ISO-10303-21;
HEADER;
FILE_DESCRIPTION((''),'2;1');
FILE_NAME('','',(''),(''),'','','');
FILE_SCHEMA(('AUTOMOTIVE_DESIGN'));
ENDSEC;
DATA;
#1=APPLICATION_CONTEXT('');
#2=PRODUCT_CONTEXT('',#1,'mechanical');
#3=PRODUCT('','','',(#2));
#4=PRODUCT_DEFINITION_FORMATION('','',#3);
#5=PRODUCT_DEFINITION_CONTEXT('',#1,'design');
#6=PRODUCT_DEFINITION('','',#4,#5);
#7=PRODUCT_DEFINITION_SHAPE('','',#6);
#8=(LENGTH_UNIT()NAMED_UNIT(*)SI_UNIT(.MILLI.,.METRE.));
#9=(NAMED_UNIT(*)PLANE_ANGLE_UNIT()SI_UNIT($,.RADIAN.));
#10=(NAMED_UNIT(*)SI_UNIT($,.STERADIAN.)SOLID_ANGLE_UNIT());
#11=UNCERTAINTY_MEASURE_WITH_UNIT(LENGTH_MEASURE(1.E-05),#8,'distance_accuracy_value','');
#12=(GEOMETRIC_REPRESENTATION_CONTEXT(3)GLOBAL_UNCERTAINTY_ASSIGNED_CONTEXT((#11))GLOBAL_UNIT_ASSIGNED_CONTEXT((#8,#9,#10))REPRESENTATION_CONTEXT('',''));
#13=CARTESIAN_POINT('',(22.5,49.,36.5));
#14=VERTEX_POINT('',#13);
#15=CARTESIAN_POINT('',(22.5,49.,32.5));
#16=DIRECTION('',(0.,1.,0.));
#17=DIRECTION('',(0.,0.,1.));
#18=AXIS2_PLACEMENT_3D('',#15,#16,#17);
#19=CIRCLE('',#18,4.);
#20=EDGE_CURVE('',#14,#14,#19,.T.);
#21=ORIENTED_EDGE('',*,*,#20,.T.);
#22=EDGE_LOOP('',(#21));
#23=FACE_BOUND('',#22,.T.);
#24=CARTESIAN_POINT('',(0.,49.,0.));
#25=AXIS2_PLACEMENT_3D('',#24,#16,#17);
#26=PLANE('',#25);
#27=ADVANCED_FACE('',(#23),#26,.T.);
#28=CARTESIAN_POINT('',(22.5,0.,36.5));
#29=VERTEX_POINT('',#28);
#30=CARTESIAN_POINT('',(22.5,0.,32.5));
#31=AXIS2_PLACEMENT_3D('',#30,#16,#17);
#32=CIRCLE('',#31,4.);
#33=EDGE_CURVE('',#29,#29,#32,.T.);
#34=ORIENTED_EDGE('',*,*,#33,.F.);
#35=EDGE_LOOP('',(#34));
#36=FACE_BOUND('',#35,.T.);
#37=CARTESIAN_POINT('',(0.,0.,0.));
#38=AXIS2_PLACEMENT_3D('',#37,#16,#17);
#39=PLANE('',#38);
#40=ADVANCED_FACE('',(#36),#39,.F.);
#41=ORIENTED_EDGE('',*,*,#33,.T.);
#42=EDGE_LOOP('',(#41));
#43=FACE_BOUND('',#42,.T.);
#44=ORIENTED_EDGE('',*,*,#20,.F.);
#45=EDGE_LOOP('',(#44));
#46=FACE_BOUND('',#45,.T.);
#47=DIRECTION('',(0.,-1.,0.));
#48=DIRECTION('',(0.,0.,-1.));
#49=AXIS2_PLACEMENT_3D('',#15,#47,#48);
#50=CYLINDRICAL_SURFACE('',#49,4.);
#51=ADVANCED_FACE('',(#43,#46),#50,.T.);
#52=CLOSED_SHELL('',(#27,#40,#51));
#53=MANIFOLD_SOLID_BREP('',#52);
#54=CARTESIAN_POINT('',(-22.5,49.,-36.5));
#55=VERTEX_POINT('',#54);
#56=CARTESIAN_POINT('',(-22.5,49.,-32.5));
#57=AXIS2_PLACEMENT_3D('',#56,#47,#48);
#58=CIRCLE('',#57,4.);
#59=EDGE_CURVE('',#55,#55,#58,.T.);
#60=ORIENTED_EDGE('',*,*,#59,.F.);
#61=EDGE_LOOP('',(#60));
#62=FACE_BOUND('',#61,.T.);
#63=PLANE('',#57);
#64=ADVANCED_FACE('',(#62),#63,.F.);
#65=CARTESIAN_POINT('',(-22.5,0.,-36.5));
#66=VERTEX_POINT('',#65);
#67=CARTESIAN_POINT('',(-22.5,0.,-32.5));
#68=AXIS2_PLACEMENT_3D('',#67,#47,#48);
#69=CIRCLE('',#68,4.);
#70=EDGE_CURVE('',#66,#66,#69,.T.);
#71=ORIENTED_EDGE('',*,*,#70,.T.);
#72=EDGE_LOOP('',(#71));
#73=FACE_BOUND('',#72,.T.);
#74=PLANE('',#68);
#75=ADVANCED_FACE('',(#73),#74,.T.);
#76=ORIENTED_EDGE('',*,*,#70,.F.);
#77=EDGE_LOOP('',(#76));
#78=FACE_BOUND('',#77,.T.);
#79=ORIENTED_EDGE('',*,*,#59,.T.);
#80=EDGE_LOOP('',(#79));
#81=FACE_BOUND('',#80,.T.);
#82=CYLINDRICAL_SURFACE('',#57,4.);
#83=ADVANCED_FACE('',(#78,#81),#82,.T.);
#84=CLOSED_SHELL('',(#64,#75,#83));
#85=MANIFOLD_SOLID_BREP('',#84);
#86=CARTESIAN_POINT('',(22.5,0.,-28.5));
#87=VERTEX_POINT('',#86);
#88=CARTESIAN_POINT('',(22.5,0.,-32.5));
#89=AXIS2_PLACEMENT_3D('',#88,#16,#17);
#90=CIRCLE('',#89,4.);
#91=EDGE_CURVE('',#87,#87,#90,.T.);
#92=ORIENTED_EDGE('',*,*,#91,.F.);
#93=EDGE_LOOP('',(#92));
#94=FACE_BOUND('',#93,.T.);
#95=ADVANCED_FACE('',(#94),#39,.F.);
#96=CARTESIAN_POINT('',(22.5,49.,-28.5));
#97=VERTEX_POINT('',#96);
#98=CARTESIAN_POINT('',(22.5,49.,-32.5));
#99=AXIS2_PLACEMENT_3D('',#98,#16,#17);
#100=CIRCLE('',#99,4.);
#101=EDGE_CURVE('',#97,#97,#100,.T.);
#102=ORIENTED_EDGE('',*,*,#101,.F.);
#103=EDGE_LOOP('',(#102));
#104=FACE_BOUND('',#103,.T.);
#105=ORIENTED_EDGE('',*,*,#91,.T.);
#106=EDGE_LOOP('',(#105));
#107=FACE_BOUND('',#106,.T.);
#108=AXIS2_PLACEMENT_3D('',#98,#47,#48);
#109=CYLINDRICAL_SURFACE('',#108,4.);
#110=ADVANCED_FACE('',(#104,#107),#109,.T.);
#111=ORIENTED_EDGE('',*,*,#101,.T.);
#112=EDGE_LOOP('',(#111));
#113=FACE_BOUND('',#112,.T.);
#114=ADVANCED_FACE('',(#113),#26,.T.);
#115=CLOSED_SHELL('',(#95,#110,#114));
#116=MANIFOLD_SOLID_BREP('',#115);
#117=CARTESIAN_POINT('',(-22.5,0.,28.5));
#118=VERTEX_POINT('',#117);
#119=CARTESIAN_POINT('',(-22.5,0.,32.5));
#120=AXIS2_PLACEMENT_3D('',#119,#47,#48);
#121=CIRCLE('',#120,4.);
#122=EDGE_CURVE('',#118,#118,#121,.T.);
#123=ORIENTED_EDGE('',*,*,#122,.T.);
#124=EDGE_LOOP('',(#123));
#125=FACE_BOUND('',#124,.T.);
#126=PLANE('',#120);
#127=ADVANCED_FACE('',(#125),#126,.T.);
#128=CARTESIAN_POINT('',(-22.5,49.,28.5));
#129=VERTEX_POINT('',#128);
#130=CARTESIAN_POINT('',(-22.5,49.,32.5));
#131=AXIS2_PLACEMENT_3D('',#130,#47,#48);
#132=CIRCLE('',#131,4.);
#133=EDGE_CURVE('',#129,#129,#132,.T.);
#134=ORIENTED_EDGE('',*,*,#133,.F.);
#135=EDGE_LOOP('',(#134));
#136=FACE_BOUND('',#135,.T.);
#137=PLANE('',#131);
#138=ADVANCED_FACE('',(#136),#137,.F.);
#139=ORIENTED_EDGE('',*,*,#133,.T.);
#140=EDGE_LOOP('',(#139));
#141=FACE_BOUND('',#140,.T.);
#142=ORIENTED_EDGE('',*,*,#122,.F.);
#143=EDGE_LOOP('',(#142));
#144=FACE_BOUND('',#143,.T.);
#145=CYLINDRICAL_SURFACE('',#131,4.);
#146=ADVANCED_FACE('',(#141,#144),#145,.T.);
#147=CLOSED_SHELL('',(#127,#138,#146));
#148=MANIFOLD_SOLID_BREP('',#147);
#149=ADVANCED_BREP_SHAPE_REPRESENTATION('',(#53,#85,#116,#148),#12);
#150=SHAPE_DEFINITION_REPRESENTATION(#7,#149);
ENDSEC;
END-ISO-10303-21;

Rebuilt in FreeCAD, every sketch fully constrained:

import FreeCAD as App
import Part
import Sketcher

doc = App.newDocument("Part")
body = doc.addObject("PartDesign::Body", "Body")

# Sketch on XZ plane
sketch1 = doc.addObject("Sketcher::SketchObject", "Sketch")
body.addObject(sketch1)
sketch1.AttachmentSupport = (doc.XZ_Plane, [""])
sketch1.MapMode = "FlatFace"
sketch1.addGeometry(Part.Circle(App.Vector(22.5, 32.5, 0), App.Vector(0, 0, 1), 4), False)
sketch1.addConstraint([
    Sketcher.Constraint("Diameter", 0, 8.0),
    Sketcher.Constraint("DistanceX", -1, 1, 0, 3, 22.5),
    Sketcher.Constraint("DistanceY", -1, 1, 0, 3, 32.5),
])
pad1 = doc.addObject("PartDesign::Pad", "Pad")
body.addObject(pad1)
pad1.Profile = sketch1
pad1.Length = 49
pad1.Reversed = True
body2 = doc.addObject("PartDesign::Body", "Body001")

# Sketch on XZ plane
sketch2 = doc.addObject("Sketcher::SketchObject", "Sketch001")
body2.addObject(sketch2)
sketch2.AttachmentSupport = (doc.getObject("XZ_Plane001"), [""])
sketch2.MapMode = "FlatFace"
sketch2.addGeometry(Part.Circle(App.Vector(22.5, -32.5, 0), App.Vector(0, 0, 1), 4), False)
sketch2.addConstraint([
    Sketcher.Constraint("Diameter", 0, 8.0),
    Sketcher.Constraint("DistanceX", -1, 1, 0, 3, 22.5),
    Sketcher.Constraint("DistanceY", 0, 3, -1, 1, 32.5),
])
pad2 = doc.addObject("PartDesign::Pad", "Pad001")
body2.addObject(pad2)
pad2.Profile = sketch2
pad2.Length = 49
pad2.Reversed = True
body3 = doc.addObject("PartDesign::Body", "Body002")

# Sketch on XZ plane
sketch3 = doc.addObject("Sketcher::SketchObject", "Sketch002")
body3.addObject(sketch3)
sketch3.AttachmentSupport = (doc.getObject("XZ_Plane002"), [""])
sketch3.MapMode = "FlatFace"
sketch3.addGeometry(Part.Circle(App.Vector(-22.5, -32.5, 0), App.Vector(0, 0, 1), 4), False)
sketch3.addConstraint([
    Sketcher.Constraint("Diameter", 0, 8.0),
    Sketcher.Constraint("DistanceX", 0, 3, -1, 1, 22.5),
    Sketcher.Constraint("DistanceY", 0, 3, -1, 1, 32.5),
])
pad3 = doc.addObject("PartDesign::Pad", "Pad002")
body3.addObject(pad3)
pad3.Profile = sketch3
pad3.Length = 49
pad3.Reversed = True
body4 = doc.addObject("PartDesign::Body", "Body003")

# Sketch on XZ plane
sketch4 = doc.addObject("Sketcher::SketchObject", "Sketch003")
body4.addObject(sketch4)
sketch4.AttachmentSupport = (doc.getObject("XZ_Plane003"), [""])
sketch4.MapMode = "FlatFace"
sketch4.addGeometry(Part.Circle(App.Vector(-22.5, 32.5, 0), App.Vector(0, 0, 1), 4), False)
sketch4.addConstraint([
    Sketcher.Constraint("Diameter", 0, 8.0),
    Sketcher.Constraint("DistanceX", 0, 3, -1, 1, 22.5),
    Sketcher.Constraint("DistanceY", -1, 1, 0, 3, 32.5),
])
pad4 = doc.addObject("PartDesign::Pad", "Pad003")
body4.addObject(pad4)
pad4.Profile = sketch4
pad4.Length = 49
pad4.Reversed = True

doc.recompute()
